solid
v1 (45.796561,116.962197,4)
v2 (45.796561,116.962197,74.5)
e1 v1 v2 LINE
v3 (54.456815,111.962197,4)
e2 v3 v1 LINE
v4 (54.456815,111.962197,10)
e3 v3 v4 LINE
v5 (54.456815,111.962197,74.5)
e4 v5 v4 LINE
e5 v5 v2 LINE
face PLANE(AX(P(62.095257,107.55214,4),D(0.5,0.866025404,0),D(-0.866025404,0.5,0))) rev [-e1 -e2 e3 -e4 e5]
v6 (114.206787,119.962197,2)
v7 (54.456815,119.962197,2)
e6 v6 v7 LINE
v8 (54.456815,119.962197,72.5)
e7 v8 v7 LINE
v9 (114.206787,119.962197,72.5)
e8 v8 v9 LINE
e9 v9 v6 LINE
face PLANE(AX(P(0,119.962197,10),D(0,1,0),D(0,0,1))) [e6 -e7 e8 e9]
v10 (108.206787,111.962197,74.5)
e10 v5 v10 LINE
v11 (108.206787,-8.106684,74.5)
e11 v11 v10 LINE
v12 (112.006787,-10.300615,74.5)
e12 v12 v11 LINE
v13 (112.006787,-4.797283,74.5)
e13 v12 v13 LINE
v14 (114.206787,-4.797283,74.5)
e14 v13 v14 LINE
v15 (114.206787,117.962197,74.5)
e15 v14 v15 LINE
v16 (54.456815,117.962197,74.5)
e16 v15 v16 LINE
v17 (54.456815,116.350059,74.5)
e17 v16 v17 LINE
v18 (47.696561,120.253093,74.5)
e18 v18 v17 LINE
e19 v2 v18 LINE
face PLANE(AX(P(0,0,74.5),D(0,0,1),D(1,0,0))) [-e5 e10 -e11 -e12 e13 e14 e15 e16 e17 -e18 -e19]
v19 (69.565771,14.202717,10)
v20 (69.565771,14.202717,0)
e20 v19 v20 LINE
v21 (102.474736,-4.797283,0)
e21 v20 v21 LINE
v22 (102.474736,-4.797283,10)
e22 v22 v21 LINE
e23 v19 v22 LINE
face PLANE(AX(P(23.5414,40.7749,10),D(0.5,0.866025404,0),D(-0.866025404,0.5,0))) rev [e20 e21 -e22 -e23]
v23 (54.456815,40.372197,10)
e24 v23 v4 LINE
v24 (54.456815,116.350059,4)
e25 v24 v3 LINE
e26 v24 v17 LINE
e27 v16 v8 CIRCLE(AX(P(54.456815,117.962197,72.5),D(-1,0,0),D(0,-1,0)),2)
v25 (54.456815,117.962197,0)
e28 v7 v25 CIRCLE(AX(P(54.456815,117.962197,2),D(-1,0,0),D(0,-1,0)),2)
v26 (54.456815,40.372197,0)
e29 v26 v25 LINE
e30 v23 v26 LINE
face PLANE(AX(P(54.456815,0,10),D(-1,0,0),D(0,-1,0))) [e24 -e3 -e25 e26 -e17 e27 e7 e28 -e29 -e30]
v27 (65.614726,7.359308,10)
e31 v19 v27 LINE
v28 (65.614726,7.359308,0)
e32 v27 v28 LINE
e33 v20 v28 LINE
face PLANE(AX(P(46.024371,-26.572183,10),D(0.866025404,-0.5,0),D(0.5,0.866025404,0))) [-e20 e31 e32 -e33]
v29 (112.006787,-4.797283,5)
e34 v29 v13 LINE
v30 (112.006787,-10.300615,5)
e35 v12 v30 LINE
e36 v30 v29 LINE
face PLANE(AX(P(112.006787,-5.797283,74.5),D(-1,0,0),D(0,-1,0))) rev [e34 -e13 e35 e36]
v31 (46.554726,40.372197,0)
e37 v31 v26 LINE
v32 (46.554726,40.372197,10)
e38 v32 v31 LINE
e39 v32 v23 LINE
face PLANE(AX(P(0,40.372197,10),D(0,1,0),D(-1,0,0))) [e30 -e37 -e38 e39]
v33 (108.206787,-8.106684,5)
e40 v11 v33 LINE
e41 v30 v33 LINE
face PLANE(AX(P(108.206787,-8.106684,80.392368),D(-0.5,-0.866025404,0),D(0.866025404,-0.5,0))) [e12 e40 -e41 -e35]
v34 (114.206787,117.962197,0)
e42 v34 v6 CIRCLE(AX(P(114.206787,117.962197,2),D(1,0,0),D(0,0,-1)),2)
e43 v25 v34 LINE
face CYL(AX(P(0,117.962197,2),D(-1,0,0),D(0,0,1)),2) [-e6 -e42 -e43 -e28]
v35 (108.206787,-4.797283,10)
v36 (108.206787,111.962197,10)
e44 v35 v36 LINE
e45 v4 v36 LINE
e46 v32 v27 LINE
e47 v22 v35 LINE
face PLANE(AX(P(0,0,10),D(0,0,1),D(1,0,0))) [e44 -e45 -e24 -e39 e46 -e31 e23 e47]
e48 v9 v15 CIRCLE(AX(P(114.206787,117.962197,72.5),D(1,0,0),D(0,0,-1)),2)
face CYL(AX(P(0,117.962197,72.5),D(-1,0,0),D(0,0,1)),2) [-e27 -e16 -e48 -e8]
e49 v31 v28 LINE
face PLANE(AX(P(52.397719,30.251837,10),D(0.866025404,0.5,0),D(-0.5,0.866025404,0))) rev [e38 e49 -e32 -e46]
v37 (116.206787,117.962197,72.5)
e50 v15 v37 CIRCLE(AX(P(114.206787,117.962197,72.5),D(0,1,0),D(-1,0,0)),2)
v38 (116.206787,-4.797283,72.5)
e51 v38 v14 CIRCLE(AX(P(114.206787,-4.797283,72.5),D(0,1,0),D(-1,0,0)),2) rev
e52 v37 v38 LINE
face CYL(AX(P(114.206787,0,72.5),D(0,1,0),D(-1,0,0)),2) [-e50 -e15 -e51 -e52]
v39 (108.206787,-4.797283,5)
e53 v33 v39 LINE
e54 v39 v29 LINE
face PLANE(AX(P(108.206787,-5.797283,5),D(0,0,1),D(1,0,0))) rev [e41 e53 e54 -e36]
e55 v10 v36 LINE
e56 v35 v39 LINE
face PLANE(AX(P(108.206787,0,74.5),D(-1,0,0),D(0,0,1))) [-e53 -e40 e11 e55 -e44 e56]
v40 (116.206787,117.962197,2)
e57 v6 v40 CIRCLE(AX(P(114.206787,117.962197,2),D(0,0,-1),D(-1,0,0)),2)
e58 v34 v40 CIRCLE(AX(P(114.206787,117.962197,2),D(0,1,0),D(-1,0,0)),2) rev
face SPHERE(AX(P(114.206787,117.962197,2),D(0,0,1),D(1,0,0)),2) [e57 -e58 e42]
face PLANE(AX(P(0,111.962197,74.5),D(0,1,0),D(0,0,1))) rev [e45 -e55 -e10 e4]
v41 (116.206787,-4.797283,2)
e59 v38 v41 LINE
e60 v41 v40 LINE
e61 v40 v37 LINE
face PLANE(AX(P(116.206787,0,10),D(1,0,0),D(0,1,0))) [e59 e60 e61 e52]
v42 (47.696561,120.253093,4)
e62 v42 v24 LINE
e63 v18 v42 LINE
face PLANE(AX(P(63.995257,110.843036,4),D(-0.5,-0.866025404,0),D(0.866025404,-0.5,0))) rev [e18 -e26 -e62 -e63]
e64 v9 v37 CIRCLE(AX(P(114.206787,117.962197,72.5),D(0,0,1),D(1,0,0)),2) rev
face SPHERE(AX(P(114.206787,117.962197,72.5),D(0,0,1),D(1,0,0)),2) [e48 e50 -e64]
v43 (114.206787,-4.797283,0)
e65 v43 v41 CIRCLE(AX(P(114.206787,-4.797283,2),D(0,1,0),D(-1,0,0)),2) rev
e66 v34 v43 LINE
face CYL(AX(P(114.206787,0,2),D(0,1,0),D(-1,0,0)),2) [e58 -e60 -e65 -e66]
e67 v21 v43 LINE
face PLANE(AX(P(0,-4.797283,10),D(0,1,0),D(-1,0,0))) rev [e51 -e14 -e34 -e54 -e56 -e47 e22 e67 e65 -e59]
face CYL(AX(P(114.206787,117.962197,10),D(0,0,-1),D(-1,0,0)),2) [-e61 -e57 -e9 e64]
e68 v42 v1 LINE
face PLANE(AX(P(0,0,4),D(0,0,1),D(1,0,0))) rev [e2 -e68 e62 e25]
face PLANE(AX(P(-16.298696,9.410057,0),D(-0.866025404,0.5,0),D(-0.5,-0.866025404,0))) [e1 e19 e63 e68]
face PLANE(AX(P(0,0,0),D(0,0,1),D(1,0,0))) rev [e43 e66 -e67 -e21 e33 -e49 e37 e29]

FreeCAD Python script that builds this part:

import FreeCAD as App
import Part
import Sketcher

V = App.Vector
Q = App.Units.Quantity


def edges_at(feature, points):
    """Names of the edges that pass closest to the given points."""
    edges = feature.Shape.Edges
    near = lambda p: min(range(len(edges)), key=lambda i: edges[i].distToShape(Part.Vertex(*p))[0])
    return sorted({f"Edge{near(p) + 1}" for p in points})


def add_polygon(sketch, points):
    """Adds a closed chain of lines whose ends are joined by coincident constraints."""
    first, n = sketch.GeometryCount, len(points)
    for a, b in zip(points, points[1:] + points[:1]):
        sketch.addGeometry(Part.LineSegment(App.Vector(*a, 0), App.Vector(*b, 0)), False)
    for i in range(n):
        sketch.addConstraint(Sketcher.Constraint("Coincident", first + i, 2, first + (i + 1) % n, 1))

doc = App.newDocument("Part")
body = doc.addObject("PartDesign::Body", "Body")

sketch1 = body.newObject("Sketcher::SketchObject", "Sketch")
sketch1.AttachmentSupport = (doc.getObject("XY_Plane"), [""])
sketch1.MapMode = "FlatFace"
add_polygon(sketch1, [(116.2, -4.8), (116.2, 120), (54.5, 120), (54.5, 40.4), (46.6, 40.4), (65.6, 7.4), (69.6, 14.2), (104.2, -5.8), (104.2, -4.8)])
sketch1.addConstraint(Sketcher.Constraint("Vertical", 0))
sketch1.addConstraint(Sketcher.Constraint("Horizontal", 1))
sketch1.addConstraint(Sketcher.Constraint("Vertical", 2))
sketch1.addConstraint(Sketcher.Constraint("Horizontal", 3))
sketch1.addConstraint(Sketcher.Constraint("Vertical", 7))
sketch1.addConstraint(Sketcher.Constraint("Horizontal", 8))
sketch1.addConstraint(Sketcher.Constraint("Perpendicular", 5, 6))
sketch1.addConstraint(Sketcher.Constraint("DistanceX", 8, 1, 8, 2, 12.0))
sketch1.addConstraint(Sketcher.Constraint("DistanceY", 7, 1, 7, 2, 1.0))
sketch1.addConstraint(Sketcher.Constraint("Angle", 4, Q("-60 deg")))
sketch1.addConstraint(Sketcher.Constraint("Angle", 5, Q("60 deg")))
sketch1.addConstraint(Sketcher.Constraint("Distance", 6, 40.0))
sketch1.addConstraint(Sketcher.Constraint("DistanceY", 2, 2, 2, 1, 79.59))
sketch1.addConstraint(Sketcher.Constraint("Distance", 4, 38.12))
sketch1.addConstraint(Sketcher.Constraint("DistanceX", 3, 2, 3, 1, 7.902088))
sketch1.addConstraint(Sketcher.Constraint("DistanceY", 0, 1, 0, 2, 124.759479))
sketch1.addConstraint(Sketcher.Constraint("DistanceY", -1, 1, 4, 2, 7.359308))
sketch1.addConstraint(Sketcher.Constraint("DistanceX", -1, 1, 5, 2, 69.565771))
pad1 = body.newObject("PartDesign::Pad", "Pad")
pad1.Profile = sketch1
pad1.Length = 10

sketch2 = body.newObject("Sketcher::SketchObject", "Sketch001")
sketch2.AttachmentSupport = (doc.getObject("XY_Plane"), [""])
sketch2.MapMode = "FlatFace"
sketch2.AttachmentOffset = App.Placement(V(0, 0, 10), App.Rotation())
add_polygon(sketch2, [(108, -5), (116, -5), (116, 120), (54, 120), (54, 112), (108, 112)])
sketch2.addConstraint(Sketcher.Constraint("Horizontal", 0))
sketch2.addConstraint(Sketcher.Constraint("Vertical", 1))
sketch2.addConstraint(Sketcher.Constraint("Horizontal", 2))
sketch2.addConstraint(Sketcher.Constraint("Vertical", 3))
sketch2.addConstraint(Sketcher.Constraint("Horizontal", 4))
sketch2.addConstraint(Sketcher.Constraint("Vertical", 5))
sketch2.addConstraint(Sketcher.Constraint("Equal", 0, 3))
sketch2.addConstraint(Sketcher.Constraint("DistanceX", 0, 1, 0, 2, 8.0))
sketch2.addConstraint(Sketcher.Constraint("DistanceY", 1, 1, 1, 2, 124.759479))
sketch2.addConstraint(Sketcher.Constraint("DistanceX", 2, 2, 2, 1, 61.749972))
sketch2.addConstraint(Sketcher.Constraint("DistanceX", -1, 1, 0, 2, 116.206787))
sketch2.addConstraint(Sketcher.Constraint("DistanceY", 0, 2, -1, 1, 4.797283))
pad2 = body.newObject("PartDesign::Pad", "Pad001")
pad2.Profile = sketch2
pad2.Length = 64.5

sketch3 = body.newObject("Sketcher::SketchObject", "Sketch002")
sketch3.AttachmentSupport = (doc.getObject("XZ_Plane"), [""])
sketch3.MapMode = "FlatFace"
sketch3.AttachmentOffset = App.Placement(V(0, 0, 4.797283), App.Rotation())
add_polygon(sketch3, [(108.2, 74.5), (108.2, 5), (112, 5), (112, 74.5)])
sketch3.addConstraint(Sketcher.Constraint("Vertical", 0))
sketch3.addConstraint(Sketcher.Constraint("Horizontal", 1))
sketch3.addConstraint(Sketcher.Constraint("Vertical", 2))
sketch3.addConstraint(Sketcher.Constraint("Horizontal", 3))
sketch3.addConstraint(Sketcher.Constraint("DistanceX", 1, 1, 1, 2, 3.8))
sketch3.addConstraint(Sketcher.Constraint("DistanceY", 0, 2, 0, 1, 69.5))
sketch3.addConstraint(Sketcher.Constraint("DistanceY", -1, 1, 0, 2, 5.0))
sketch3.addConstraint(Sketcher.Constraint("DistanceX", -1, 1, 0, 2, 108.206787))
pad3 = body.newObject("PartDesign::Pad", "Pad002")
pad3.Profile = sketch3
pad3.Length = 1

sketch4 = body.newObject("Sketcher::SketchObject", "Sketch003")
sketch4.AttachmentSupport = (doc.getObject("XY_Plane"), [""])
sketch4.MapMode = "FlatFace"
sketch4.AttachmentOffset = App.Placement(V(0, 0, 5), App.Rotation())
add_polygon(sketch4, [(108.2, -8.1), (108.2, -5.8), (112, -5.8), (112, -10.3)])
sketch4.addConstraint(Sketcher.Constraint("Vertical", 0))
sketch4.addConstraint(Sketcher.Constraint("Horizontal", 1))
sketch4.addConstraint(Sketcher.Constraint("Vertical", 2))
sketch4.addConstraint(Sketcher.Constraint("Angle", 3, Q("150 deg")))
sketch4.addConstraint(Sketcher.Constraint("DistanceX", 1, 1, 1, 2, 3.8))
sketch4.addConstraint(Sketcher.Constraint("DistanceY", 0, 1, 0, 2, 2.309401))
sketch4.addConstraint(Sketcher.Constraint("DistanceX", -1, 1, 0, 2, 108.206787))
sketch4.addConstraint(Sketcher.Constraint("DistanceY", 0, 2, -1, 1, 5.797283))
pad4 = body.newObject("PartDesign::Pad", "Pad003")
pad4.Profile = sketch4
pad4.Length = 69.5

sketch5 = body.newObject("Sketcher::SketchObject", "Sketch004")
sketch5.AttachmentSupport = (doc.getObject("XY_Plane"), [""])
sketch5.MapMode = "FlatFace"
sketch5.AttachmentOffset = App.Placement(V(0, 0, 74.5), App.Rotation())
add_polygon(sketch5, [(51, 114), (54.5, 112), (54.5, 116.4), (52.9, 117.3)])
sketch5.addConstraint(Sketcher.Constraint("Vertical", 1))
sketch5.addConstraint(Sketcher.Constraint("Parallel", 0, 2))
sketch5.addConstraint(Sketcher.Constraint("Perpendicular", 2, 3))
sketch5.addConstraint(Sketcher.Constraint("Angle", 0, Q("-30 deg")))
sketch5.addConstraint(Sketcher.Constraint("Distance", 0, 4.0))
sketch5.addConstraint(Sketcher.Constraint("Distance", 3, 3.8))
sketch5.addConstraint(Sketcher.Constraint("DistanceY", -1, 1, 1, 2, 116.350059))
sketch5.addConstraint(Sketcher.Constraint("DistanceX", -1, 1, 0, 2, 54.456815))
pad5 = body.newObject("PartDesign::Pad", "Pad004")
pad5.Profile = sketch5
pad5.Length = 70.5
pad5.Reversed = True
doc.recompute()

fillet = body.newObject("PartDesign::Fillet", "Fillet")
fillet.Base = (pad5, edges_at(pad5, [
    (85.332, 119.962, 0),
    (116.207, 57.582, 0),
    (116.207, 119.962, 37.25),
    (116.207, 57.582, 74.5),
    (85.332, 119.962, 74.5),
]))
fillet.Radius = 2

sketch6 = body.newObject("Sketcher::SketchObject", "Sketch005")
sketch6.Placement = App.Placement(V(-11.102544, 6.410057, 0), App.Rotation(V(0, 0, 1), V(0.5, 0.866025404, 0), V(-0.866025404, 0.5, 0), "ZXY"))
add_polygon(sketch6, [(4, 128), (4, 124.2), (74.5, 124.2), (74.5, 128)])
sketch6.addConstraint(Sketcher.Constraint("Vertical", 0))
sketch6.addConstraint(Sketcher.Constraint("Horizontal", 1))
sketch6.addConstraint(Sketcher.Constraint("Vertical", 2))
sketch6.addConstraint(Sketcher.Constraint("Horizontal", 3))
sketch6.addConstraint(Sketcher.Constraint("DistanceX", 1, 1, 1, 2, 70.5))
sketch6.addConstraint(Sketcher.Constraint("DistanceY", 0, 2, 0, 1, 3.8))
sketch6.addConstraint(Sketcher.Constraint("DistanceX", -1, 1, 0, 2, 4.0))
sketch6.addConstraint(Sketcher.Constraint("DistanceY", -1, 1, 0, 2, 124.190514))
pad6 = body.newObject("PartDesign::Pad", "Pad005")
pad6.Profile = sketch6
pad6.Length = 6

sketch7 = body.newObject("Sketcher::SketchObject", "Sketch006")
sketch7.AttachmentSupport = (doc.getObject("XY_Plane"), [""])
sketch7.MapMode = "FlatFace"
add_polygon(sketch7, [(102.5, -4.8), (104.2, -4.8), (104.2, -5.8)])
sketch7.addConstraint(Sketcher.Constraint("Horizontal", 0))
sketch7.addConstraint(Sketcher.Constraint("Vertical", 1))
sketch7.addConstraint(Sketcher.Constraint("DistanceY", 1, 2, 1, 1, 1.0))
sketch7.addConstraint(Sketcher.Constraint("Angle", 2, Q("150 deg")))
sketch7.addConstraint(Sketcher.Constraint("DistanceX", -1, 1, 0, 2, 104.206787))
sketch7.addConstraint(Sketcher.Constraint("DistanceY", 0, 2, -1, 1, 4.797283))
pocket1 = body.newObject("PartDesign::Pocket", "Pocket")
pocket1.Profile = sketch7
pocket1.Type = "UpToFirst"
pocket1.Reversed = True

doc.recompute()
